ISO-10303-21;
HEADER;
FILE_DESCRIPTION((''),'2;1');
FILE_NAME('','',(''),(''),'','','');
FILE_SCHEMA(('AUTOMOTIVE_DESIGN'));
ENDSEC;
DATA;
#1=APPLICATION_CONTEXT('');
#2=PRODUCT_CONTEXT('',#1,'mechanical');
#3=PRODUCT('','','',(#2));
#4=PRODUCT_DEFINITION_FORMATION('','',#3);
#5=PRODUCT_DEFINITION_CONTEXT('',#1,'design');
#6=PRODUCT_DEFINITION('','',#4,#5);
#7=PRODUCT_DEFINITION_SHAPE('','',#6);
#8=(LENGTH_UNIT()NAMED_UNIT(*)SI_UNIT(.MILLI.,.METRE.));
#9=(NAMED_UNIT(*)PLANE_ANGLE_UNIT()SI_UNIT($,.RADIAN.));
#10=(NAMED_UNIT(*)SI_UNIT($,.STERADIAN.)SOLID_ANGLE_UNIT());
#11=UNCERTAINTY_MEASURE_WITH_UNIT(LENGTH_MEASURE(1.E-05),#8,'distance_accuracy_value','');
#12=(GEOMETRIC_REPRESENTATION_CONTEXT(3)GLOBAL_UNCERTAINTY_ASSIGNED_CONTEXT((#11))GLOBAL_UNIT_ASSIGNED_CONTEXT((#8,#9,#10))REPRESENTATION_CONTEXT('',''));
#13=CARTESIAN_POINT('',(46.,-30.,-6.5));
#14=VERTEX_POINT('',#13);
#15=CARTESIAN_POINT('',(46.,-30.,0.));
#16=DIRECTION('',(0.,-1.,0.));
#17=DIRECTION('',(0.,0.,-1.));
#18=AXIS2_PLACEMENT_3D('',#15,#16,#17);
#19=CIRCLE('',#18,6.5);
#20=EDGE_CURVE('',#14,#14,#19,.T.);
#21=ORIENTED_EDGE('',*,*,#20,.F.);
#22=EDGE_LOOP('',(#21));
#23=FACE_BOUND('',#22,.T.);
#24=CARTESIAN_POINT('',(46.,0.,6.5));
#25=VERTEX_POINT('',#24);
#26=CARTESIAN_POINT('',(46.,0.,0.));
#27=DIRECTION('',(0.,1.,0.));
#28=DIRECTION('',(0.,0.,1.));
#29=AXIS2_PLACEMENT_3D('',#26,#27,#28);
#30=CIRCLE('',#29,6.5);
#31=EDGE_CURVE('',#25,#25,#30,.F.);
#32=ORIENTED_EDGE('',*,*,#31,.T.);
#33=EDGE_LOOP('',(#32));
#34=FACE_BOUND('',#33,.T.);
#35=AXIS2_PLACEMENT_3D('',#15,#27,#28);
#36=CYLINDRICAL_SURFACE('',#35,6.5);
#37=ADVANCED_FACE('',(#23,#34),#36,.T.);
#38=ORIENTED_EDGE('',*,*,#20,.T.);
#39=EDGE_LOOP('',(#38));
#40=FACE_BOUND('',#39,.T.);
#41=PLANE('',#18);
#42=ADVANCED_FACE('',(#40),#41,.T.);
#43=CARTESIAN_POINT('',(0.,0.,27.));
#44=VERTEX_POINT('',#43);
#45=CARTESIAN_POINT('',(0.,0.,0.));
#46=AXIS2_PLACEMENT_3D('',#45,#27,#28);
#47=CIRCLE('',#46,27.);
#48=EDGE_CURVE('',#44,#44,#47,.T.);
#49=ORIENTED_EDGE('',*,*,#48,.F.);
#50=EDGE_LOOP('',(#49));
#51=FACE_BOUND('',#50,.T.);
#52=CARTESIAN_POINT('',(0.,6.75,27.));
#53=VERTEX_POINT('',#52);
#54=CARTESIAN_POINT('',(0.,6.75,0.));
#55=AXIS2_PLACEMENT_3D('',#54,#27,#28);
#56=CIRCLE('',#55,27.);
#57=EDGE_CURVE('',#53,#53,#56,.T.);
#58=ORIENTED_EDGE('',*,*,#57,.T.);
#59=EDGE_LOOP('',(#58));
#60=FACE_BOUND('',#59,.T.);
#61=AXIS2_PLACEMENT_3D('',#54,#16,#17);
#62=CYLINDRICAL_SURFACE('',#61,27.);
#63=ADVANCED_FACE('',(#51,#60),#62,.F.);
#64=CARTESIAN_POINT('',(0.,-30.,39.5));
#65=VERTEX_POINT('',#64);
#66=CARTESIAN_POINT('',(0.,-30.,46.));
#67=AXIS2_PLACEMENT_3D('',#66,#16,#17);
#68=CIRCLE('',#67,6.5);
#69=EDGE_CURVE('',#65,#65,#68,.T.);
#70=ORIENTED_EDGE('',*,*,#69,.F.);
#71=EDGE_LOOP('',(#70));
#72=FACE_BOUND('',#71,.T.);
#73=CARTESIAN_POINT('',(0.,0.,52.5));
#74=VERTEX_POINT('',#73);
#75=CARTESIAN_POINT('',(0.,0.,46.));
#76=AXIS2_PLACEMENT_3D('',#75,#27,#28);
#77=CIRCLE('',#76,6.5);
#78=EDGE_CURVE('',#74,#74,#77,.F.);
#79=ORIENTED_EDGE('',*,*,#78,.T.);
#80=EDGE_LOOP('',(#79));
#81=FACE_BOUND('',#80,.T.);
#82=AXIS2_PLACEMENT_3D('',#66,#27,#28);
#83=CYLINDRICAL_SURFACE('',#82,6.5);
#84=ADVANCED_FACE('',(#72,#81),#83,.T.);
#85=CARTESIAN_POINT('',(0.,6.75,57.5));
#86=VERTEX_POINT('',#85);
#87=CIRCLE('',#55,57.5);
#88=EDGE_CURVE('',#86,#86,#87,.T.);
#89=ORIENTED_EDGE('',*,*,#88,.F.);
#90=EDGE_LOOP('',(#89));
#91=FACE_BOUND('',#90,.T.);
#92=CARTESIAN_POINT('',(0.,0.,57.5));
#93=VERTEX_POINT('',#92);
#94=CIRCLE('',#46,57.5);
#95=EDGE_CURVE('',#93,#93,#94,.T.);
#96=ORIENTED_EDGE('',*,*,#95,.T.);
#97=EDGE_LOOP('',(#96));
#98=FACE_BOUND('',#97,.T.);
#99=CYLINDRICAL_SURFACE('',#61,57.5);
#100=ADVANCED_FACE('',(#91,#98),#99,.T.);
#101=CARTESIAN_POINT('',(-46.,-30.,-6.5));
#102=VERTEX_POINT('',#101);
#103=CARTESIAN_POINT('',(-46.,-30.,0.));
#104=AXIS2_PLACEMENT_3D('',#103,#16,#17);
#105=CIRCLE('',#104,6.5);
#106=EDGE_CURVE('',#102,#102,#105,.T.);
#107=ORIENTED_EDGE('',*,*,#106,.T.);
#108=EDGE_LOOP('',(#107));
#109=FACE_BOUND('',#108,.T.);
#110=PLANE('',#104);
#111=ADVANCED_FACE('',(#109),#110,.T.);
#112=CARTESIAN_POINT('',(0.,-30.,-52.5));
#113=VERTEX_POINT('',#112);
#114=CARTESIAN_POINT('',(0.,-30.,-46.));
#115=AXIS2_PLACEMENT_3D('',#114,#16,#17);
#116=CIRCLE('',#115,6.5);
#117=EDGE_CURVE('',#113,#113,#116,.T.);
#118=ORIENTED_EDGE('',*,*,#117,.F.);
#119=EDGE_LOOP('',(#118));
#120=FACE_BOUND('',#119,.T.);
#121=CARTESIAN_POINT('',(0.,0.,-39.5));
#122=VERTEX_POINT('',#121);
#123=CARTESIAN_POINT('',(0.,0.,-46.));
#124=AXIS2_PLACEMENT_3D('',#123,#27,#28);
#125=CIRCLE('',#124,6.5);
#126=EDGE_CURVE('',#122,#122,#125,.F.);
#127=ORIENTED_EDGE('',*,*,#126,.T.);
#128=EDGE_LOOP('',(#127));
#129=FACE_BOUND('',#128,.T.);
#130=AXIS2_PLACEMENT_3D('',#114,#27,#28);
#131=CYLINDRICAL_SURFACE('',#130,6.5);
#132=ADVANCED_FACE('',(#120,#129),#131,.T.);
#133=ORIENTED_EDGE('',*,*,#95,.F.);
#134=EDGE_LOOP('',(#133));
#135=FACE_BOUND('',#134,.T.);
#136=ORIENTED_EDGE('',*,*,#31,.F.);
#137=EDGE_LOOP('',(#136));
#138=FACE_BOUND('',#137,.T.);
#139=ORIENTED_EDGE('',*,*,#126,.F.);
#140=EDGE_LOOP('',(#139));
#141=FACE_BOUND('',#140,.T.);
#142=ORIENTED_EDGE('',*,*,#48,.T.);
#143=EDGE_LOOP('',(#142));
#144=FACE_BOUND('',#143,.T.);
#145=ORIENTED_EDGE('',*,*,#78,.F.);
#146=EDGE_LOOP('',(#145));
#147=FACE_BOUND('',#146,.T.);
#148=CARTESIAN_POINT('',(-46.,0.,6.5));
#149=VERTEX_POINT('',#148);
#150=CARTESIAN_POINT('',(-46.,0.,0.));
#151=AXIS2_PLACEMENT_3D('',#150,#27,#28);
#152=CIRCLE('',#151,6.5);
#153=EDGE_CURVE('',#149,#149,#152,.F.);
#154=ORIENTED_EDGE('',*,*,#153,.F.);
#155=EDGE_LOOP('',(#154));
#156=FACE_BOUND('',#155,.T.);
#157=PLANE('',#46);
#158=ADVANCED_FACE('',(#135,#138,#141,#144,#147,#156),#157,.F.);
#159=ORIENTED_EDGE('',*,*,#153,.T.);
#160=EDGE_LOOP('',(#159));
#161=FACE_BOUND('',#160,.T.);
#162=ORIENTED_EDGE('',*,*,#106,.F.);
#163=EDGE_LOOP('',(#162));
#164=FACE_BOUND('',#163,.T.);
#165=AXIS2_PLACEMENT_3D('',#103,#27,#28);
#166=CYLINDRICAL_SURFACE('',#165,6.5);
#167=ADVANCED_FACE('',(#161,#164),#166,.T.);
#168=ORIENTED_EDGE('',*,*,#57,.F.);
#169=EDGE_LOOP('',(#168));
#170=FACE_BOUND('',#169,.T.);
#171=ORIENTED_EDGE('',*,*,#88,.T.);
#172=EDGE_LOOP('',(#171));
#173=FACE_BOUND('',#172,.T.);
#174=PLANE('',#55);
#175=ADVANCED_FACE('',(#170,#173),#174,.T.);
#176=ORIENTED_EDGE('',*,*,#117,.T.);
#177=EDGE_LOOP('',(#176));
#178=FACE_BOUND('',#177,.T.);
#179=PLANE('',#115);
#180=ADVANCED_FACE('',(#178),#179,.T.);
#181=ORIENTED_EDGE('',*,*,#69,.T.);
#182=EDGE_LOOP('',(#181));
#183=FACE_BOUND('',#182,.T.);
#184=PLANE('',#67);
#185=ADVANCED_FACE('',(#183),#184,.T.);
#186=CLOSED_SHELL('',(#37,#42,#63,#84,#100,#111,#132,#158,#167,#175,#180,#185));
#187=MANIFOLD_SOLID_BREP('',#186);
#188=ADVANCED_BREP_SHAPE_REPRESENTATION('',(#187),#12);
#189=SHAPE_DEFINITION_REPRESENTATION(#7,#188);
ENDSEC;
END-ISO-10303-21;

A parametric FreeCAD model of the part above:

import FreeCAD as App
import Part
import Sketcher

V = App.Vector
Q = App.Units.Quantity

doc = App.newDocument("Part")
body = doc.addObject("PartDesign::Body", "Body")

# Sketch on XZ plane
sketch1 = body.newObject("Sketcher::SketchObject", "Sketch")
sketch1.AttachmentSupport = (doc.getObject("XZ_Plane"), [""])
sketch1.MapMode = "FlatFace"
sketch1.addGeometry([
    Part.Circle(V(0, 0, 0), V(0, 0, 1), 58),
    Part.Circle(V(0, 0, 0), V(0, 0, 1), 27),
], False)
sketch1.addConstraint([
    Sketcher.Constraint("Coincident", 0, 3, -1, 1),
    Sketcher.Constraint("Coincident", 1, 3, -1, 1),
    Sketcher.Constraint("Diameter", 0, Q("115 mm")),
    Sketcher.Constraint("Diameter", 1, Q("54 mm")),
])
pad1 = body.newObject("PartDesign::Pad", "Pad")
pad1.Profile = sketch1
pad1.Length = 6.75
pad1.Reversed = True

# Sketch on XZ plane
sketch2 = body.newObject("Sketcher::SketchObject", "Sketch001")
sketch2.AttachmentSupport = (doc.getObject("XZ_Plane"), [""])
sketch2.MapMode = "FlatFace"
sketch2.addGeometry([
    Part.Circle(V(0, 46, 0), V(0, 0, 1), 6),
    Part.Circle(V(0, -46, 0), V(0, 0, 1), 6),
    Part.Circle(V(-46, 0, 0), V(0, 0, 1), 6),
    Part.Circle(V(46, 0, 0), V(0, 0, 1), 6),
], False)
sketch2.addConstraint([
    Sketcher.Constraint("Equal", 0, 1),
    Sketcher.Constraint("Equal", 1, 2),
    Sketcher.Constraint("Equal", 2, 3),
    Sketcher.Constraint("Symmetric", 0, 3, 1, 3, -1, 1),
    Sketcher.Constraint("Symmetric", 2, 3, 3, 3, -1, 1),
    Sketcher.Constraint("PointOnObject", 0, 3, -2),
    Sketcher.Constraint("PointOnObject", 2, 3, -1),
    Sketcher.Constraint("Diameter", 0, Q("13 mm")),
    Sketcher.Constraint("DistanceY", -1, 1, 0, 3, Q("46 mm")),
    Sketcher.Constraint("DistanceX", 2, 3, -1, 1, Q("46 mm")),
])
pad2 = body.newObject("PartDesign::Pad", "Pad001")
pad2.Profile = sketch2
pad2.Length = 30

doc.recompute()
